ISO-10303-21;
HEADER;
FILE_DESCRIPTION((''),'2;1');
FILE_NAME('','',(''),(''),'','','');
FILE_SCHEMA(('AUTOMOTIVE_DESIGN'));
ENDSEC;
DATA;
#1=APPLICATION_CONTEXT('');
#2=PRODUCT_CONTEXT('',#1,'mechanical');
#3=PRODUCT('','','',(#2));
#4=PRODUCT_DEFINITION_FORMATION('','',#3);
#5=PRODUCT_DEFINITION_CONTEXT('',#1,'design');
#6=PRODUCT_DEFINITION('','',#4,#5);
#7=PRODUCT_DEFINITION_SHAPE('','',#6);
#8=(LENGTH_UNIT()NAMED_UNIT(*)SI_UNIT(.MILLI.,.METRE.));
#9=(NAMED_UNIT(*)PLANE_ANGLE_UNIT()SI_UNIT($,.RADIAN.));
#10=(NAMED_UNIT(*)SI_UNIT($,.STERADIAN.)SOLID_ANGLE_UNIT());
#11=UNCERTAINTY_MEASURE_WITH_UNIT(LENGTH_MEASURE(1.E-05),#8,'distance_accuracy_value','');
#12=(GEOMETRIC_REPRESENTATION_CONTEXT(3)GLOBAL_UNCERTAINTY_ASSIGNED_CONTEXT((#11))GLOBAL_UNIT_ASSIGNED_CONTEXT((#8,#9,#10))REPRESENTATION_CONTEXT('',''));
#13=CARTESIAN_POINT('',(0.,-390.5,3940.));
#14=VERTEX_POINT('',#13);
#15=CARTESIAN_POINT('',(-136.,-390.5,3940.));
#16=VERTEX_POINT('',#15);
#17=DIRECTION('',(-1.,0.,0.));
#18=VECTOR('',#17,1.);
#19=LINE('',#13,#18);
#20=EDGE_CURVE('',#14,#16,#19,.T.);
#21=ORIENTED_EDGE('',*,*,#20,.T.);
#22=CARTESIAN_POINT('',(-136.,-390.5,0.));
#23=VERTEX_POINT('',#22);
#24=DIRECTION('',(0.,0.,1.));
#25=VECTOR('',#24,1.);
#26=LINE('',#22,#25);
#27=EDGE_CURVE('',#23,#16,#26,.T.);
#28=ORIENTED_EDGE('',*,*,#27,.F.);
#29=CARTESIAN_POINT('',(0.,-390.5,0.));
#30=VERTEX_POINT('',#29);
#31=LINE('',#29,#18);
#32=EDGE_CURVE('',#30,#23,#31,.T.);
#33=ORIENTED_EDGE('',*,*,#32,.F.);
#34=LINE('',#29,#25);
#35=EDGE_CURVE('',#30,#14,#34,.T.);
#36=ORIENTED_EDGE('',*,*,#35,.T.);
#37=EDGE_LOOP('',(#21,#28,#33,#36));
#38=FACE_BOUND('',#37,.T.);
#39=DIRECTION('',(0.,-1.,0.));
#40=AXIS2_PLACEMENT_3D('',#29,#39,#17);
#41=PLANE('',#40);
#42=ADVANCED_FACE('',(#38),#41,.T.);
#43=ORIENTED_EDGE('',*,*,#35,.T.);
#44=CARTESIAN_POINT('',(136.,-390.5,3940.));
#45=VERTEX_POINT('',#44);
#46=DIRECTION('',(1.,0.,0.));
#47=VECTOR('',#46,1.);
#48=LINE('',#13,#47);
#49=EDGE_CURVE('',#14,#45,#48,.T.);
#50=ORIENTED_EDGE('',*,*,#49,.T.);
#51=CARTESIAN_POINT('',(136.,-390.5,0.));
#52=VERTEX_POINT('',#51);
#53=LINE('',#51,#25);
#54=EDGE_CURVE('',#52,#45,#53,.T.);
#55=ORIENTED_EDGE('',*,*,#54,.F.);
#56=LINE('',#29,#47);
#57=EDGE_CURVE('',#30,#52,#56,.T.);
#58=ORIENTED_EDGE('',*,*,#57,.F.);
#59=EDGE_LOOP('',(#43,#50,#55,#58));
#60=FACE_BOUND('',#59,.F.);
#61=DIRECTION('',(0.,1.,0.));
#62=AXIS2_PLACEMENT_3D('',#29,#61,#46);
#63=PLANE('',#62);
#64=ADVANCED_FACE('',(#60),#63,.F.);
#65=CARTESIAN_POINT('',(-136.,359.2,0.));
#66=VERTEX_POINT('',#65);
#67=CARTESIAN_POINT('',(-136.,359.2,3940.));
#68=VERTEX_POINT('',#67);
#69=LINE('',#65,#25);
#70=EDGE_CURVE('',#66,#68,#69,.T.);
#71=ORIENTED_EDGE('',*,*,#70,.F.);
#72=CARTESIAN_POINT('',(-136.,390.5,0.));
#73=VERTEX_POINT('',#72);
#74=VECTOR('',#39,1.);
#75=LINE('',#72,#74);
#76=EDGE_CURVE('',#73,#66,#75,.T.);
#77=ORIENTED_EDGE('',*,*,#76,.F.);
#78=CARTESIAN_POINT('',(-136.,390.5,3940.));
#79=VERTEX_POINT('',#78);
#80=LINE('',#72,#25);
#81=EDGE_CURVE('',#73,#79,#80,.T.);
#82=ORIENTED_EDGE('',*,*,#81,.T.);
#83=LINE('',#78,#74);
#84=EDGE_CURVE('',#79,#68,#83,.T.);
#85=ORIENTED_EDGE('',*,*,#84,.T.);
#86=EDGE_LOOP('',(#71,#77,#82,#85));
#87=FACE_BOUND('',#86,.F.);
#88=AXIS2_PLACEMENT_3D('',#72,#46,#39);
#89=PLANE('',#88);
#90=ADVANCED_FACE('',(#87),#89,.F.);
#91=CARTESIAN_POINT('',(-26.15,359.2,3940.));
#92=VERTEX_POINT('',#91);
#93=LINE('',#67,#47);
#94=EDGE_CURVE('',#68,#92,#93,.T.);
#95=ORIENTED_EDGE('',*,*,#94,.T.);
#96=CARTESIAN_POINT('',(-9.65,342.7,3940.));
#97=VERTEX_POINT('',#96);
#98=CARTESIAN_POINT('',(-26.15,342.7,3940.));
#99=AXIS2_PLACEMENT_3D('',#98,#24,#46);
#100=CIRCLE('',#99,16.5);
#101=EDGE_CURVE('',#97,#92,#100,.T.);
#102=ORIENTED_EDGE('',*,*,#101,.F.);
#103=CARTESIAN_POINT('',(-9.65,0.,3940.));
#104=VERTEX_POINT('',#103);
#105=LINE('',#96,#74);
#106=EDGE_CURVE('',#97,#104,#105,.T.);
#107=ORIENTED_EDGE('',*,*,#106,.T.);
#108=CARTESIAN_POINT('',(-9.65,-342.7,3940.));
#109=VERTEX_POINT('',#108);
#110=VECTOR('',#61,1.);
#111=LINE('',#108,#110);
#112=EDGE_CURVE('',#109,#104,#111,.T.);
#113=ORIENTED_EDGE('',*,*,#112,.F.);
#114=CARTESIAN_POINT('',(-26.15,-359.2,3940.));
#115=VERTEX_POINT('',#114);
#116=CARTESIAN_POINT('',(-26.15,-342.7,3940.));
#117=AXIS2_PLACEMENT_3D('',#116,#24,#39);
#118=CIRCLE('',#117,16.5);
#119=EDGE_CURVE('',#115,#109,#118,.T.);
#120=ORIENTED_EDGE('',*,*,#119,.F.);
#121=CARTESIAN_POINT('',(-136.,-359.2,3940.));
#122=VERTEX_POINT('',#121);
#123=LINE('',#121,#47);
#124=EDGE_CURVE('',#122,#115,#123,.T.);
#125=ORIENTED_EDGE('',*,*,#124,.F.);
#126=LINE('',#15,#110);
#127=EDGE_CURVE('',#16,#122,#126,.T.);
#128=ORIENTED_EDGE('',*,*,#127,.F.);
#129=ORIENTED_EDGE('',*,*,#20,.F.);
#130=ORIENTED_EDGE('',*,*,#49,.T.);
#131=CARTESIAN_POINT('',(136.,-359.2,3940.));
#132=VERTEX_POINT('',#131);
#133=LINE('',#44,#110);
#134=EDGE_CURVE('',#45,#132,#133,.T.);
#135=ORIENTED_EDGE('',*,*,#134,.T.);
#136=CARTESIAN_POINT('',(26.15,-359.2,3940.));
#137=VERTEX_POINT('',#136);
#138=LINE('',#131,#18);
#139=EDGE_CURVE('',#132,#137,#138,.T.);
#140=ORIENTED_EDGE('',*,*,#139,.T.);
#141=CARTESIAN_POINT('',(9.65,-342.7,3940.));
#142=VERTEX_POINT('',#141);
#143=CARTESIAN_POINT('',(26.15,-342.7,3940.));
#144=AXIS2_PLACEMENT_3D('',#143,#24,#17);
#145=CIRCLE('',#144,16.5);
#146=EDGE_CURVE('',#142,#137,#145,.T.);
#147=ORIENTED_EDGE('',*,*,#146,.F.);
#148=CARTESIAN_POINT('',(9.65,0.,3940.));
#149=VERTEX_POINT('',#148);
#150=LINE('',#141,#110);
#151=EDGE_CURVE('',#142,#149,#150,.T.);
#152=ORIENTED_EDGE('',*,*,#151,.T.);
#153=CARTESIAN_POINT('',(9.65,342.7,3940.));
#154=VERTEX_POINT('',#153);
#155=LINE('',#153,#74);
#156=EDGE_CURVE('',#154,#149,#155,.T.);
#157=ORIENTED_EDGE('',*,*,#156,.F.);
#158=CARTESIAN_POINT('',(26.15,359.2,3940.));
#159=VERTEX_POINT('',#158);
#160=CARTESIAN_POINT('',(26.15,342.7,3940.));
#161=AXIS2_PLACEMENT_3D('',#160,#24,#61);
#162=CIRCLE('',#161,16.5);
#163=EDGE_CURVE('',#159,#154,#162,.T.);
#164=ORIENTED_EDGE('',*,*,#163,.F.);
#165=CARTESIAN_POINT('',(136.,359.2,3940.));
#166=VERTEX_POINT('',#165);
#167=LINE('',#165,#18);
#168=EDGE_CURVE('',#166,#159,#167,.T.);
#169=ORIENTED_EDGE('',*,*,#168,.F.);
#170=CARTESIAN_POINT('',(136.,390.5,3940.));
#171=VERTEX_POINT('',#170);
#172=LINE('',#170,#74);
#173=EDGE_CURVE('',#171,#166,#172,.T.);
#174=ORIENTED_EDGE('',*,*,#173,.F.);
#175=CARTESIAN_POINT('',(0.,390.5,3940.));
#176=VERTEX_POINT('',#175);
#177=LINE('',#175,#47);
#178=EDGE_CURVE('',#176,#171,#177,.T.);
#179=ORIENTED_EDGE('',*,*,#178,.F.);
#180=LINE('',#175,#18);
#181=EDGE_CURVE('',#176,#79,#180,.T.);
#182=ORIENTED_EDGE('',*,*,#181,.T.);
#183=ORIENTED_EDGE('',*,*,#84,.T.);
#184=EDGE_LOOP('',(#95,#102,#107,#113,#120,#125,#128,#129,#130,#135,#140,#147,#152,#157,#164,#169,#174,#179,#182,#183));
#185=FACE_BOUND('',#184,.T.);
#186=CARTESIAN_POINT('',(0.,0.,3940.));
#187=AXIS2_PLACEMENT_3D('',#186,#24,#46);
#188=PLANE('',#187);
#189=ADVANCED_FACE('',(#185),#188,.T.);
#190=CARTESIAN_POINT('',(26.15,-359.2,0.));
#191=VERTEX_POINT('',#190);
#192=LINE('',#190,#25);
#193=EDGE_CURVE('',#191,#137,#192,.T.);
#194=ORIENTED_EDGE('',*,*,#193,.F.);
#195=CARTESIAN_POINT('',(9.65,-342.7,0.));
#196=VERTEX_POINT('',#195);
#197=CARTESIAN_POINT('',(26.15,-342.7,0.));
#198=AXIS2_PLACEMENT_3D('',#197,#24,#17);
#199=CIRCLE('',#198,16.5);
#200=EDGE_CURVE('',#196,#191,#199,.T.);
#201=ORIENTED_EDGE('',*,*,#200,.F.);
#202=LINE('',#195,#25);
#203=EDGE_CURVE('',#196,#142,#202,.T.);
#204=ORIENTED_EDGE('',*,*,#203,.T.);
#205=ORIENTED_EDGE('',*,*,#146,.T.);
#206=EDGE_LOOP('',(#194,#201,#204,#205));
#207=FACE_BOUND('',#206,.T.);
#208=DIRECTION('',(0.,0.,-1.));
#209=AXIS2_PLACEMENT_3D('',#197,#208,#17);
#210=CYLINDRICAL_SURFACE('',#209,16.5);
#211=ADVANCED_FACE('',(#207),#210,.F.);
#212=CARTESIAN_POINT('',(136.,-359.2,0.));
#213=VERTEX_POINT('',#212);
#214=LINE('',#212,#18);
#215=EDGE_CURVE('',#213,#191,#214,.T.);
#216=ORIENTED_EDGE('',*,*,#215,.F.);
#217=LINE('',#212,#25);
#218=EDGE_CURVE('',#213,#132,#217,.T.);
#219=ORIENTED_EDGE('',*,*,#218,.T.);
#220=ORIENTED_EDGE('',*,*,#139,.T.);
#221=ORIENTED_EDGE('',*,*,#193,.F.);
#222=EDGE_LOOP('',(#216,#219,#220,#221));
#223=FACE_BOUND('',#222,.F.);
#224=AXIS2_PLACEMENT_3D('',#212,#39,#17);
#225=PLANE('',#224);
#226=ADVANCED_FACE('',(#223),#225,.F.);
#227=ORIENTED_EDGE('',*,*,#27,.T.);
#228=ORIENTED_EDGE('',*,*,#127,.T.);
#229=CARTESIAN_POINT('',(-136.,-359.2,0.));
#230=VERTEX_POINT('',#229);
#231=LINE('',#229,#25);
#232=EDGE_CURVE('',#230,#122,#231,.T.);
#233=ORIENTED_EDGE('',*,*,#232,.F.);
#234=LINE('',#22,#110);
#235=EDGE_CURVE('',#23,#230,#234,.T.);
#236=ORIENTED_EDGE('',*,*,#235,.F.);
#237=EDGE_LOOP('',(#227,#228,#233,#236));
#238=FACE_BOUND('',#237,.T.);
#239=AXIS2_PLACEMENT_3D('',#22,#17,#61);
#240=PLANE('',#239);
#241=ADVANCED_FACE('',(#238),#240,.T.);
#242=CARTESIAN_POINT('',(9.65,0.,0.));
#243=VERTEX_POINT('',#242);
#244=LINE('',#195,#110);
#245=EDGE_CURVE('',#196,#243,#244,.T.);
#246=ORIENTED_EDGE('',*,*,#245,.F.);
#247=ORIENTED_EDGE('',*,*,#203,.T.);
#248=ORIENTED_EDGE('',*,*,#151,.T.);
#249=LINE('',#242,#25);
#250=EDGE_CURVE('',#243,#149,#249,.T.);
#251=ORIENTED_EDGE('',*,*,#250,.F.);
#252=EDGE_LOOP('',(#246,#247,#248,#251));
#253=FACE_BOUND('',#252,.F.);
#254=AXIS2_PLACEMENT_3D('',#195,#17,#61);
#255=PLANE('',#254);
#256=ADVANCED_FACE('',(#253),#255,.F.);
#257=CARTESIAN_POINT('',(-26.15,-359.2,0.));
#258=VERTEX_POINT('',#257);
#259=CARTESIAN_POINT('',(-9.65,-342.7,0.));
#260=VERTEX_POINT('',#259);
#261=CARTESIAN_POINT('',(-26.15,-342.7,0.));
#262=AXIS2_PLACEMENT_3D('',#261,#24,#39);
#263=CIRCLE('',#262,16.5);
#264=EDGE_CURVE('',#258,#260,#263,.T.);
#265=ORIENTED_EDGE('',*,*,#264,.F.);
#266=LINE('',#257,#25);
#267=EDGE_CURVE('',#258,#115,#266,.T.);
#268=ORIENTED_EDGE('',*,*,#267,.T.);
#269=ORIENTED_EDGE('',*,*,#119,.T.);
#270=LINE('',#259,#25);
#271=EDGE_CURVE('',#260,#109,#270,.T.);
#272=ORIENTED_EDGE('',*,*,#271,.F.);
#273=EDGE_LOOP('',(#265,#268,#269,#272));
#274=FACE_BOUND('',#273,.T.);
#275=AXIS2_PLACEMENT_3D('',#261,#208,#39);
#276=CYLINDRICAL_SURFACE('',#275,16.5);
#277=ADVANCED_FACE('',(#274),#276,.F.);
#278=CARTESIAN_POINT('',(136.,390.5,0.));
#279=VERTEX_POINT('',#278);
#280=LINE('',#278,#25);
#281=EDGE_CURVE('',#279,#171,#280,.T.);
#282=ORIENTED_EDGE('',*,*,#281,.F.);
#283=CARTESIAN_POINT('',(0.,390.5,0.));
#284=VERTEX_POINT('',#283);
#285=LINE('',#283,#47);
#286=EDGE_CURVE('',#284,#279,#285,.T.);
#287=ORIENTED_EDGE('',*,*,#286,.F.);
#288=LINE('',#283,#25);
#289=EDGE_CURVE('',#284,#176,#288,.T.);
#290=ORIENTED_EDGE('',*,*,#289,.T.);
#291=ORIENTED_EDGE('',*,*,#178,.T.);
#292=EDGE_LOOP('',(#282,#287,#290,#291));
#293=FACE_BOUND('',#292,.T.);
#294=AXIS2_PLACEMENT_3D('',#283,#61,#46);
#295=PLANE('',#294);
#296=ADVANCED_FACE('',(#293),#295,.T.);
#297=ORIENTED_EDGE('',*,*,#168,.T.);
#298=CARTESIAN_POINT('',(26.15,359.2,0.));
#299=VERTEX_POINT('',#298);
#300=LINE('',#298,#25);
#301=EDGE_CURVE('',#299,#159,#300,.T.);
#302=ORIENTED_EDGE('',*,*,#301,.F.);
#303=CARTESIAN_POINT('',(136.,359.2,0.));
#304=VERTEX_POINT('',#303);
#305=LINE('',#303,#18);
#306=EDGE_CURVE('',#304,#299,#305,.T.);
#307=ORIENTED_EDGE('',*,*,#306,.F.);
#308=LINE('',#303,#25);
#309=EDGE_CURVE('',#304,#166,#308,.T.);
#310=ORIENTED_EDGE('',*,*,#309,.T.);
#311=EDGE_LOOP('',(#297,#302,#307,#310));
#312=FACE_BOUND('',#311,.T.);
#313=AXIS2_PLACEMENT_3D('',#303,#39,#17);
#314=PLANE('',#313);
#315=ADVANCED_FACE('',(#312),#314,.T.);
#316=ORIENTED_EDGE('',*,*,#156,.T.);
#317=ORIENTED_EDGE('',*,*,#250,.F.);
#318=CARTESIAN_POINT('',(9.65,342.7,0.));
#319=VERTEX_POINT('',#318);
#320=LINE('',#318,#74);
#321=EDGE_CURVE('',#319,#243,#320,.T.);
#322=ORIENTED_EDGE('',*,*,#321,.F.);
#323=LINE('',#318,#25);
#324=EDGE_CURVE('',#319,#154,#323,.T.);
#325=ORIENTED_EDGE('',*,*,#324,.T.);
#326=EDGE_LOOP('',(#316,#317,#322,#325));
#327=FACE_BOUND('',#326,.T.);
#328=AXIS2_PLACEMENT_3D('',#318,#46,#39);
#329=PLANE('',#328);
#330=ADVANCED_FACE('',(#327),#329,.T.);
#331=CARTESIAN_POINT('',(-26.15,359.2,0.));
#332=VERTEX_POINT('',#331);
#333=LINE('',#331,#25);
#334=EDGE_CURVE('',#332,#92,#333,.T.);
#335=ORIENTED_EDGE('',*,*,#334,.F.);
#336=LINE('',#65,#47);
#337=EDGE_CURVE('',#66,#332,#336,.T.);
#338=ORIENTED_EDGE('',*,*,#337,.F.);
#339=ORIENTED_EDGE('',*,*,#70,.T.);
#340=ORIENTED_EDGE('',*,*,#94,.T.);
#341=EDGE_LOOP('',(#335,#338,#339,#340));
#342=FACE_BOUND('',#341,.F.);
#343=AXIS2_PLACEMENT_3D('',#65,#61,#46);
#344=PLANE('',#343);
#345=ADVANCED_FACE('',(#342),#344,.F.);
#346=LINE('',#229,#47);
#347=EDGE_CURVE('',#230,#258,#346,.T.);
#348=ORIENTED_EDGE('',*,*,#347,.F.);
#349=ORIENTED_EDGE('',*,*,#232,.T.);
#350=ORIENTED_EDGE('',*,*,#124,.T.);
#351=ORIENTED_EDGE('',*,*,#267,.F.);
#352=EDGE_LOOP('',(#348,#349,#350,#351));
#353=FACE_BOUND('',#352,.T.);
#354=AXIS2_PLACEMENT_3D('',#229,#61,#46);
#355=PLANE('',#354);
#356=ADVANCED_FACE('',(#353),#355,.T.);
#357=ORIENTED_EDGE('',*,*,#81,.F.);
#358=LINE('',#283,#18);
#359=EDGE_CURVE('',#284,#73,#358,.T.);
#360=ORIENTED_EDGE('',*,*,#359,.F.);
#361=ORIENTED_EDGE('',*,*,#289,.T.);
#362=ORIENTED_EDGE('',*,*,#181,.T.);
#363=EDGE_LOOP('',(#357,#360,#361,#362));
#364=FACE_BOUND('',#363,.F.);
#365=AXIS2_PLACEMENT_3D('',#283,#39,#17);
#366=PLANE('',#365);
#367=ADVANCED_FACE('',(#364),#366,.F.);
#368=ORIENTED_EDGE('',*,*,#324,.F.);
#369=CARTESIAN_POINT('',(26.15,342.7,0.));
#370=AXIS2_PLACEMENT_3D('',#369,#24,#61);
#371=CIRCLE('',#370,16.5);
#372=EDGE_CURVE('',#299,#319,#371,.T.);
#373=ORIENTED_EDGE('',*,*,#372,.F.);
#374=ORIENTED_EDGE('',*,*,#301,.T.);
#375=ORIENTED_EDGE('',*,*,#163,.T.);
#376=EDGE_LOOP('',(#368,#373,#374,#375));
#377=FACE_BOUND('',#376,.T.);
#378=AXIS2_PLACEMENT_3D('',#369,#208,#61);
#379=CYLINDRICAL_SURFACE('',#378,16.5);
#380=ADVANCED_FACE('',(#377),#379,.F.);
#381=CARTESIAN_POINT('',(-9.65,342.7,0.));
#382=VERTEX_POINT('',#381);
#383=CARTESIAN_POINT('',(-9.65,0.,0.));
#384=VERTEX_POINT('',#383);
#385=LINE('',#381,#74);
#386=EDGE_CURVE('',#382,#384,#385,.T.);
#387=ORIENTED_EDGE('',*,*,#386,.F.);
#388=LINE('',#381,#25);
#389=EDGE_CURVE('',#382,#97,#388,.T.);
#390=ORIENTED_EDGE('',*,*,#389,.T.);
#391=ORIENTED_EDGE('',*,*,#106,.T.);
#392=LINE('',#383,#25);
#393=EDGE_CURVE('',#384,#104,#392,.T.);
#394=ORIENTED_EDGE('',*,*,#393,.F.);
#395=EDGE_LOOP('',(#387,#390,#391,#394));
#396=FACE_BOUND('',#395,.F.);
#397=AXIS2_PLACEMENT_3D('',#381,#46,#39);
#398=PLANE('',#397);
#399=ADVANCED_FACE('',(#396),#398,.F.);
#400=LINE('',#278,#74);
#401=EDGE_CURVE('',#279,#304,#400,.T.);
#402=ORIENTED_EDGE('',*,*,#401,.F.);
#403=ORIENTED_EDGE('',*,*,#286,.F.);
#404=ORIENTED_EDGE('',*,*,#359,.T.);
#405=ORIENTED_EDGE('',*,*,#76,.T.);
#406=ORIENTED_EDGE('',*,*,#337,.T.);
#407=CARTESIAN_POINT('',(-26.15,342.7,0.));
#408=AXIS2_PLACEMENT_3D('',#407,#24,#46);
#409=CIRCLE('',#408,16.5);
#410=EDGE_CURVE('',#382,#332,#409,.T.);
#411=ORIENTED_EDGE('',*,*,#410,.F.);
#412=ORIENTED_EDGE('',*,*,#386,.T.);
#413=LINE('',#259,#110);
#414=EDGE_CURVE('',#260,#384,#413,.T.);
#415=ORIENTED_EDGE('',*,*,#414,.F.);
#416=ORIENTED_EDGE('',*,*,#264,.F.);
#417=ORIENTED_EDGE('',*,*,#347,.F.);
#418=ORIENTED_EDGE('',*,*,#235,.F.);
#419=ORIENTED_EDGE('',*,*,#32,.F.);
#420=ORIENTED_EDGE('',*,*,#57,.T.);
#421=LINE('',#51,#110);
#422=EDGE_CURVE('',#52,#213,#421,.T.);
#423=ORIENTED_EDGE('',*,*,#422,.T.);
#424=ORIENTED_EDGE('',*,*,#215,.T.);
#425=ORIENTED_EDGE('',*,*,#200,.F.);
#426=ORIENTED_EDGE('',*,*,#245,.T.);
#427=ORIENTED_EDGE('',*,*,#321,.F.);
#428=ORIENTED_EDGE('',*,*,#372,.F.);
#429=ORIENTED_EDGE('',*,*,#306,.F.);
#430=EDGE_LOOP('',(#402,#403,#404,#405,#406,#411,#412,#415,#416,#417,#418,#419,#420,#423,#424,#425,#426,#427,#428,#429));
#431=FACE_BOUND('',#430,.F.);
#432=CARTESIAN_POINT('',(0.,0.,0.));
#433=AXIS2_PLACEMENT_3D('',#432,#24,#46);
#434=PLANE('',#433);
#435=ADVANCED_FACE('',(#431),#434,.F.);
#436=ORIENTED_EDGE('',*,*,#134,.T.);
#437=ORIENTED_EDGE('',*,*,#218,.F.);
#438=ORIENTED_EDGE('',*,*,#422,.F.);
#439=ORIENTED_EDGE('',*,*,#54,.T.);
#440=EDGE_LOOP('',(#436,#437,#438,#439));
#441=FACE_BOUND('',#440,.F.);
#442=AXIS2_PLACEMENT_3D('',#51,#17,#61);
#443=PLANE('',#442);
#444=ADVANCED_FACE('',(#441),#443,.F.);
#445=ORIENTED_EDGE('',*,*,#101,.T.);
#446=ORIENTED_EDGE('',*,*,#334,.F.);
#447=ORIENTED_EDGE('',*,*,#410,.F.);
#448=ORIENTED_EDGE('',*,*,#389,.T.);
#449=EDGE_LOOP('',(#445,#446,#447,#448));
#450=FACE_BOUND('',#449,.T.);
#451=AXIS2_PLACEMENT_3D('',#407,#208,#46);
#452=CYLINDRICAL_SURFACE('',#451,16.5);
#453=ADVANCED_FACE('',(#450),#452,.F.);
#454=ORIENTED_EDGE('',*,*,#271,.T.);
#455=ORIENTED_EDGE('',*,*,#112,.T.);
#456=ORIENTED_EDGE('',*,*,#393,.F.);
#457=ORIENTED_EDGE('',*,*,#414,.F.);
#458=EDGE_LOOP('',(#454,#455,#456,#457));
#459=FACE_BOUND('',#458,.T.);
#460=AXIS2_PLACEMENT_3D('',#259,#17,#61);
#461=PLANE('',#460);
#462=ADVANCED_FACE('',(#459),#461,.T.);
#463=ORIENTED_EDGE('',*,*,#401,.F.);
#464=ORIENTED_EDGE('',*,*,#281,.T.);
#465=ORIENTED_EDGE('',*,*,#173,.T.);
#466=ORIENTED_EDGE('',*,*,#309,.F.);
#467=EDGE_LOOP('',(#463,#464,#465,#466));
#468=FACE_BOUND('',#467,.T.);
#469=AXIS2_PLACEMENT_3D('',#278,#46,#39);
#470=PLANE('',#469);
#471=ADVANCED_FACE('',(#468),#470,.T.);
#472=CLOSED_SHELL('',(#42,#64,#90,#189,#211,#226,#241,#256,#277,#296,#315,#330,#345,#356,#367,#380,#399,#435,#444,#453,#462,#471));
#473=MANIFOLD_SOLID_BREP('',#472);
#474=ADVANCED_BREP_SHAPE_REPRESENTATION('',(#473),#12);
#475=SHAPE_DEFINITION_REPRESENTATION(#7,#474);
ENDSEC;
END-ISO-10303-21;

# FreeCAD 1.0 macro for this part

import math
import FreeCAD as App
import Part
import Sketcher
Q = App.Units.Quantity

doc = App.newDocument("Part")
params = doc.addObject("Spreadsheet::Sheet", "Params")
for row, (alias, value) in enumerate([
    ("sketch1_radius", "16.5 mm"),
    ("sketch1_height", "31.3 mm"),
    ("pad1_length", "3940 mm"),
], start=1):
    params.set(f"A{row}", alias)
    params.set(f"B{row}", "=" + value)
    params.setAlias(f"B{row}", alias)

body = doc.addObject("PartDesign::Body", "Body")

# Sketch on XY plane
sketch1 = body.newObject("Sketcher::SketchObject", "Sketch")
sketch1.AttachmentSupport = (doc.getObject("XY_Plane"), [""])
sketch1.MapMode = "FlatFace"
sketch1.addGeometry([
    Part.LineSegment(App.Vector(-136, -359, 0), App.Vector(-136, -390, 0)),  # 0
    Part.LineSegment(App.Vector(-136, -390, 0), App.Vector(136, -390, 0)),  # 1
    Part.LineSegment(App.Vector(136, -390, 0), App.Vector(136, -359, 0)),  # 2
    Part.LineSegment(App.Vector(136, -359, 0), App.Vector(26, -359, 0)),  # 3
    Part.ArcOfCircle(Part.Circle(App.Vector(26, -343, 0), App.Vector(0, 0, 1), 16), math.radians(180), math.radians(270)),  # 4
    Part.LineSegment(App.Vector(10, -343, 0), App.Vector(10, 343, 0)),  # 5
    Part.ArcOfCircle(Part.Circle(App.Vector(26, 343, 0), App.Vector(0, 0, 1), 16), math.radians(90), math.radians(180)),  # 6
    Part.LineSegment(App.Vector(26, 359, 0), App.Vector(136, 359, 0)),  # 7
    Part.LineSegment(App.Vector(136, 359, 0), App.Vector(136, 390, 0)),  # 8
    Part.LineSegment(App.Vector(136, 390, 0), App.Vector(-136, 390, 0)),  # 9
    Part.LineSegment(App.Vector(-136, 390, 0), App.Vector(-136, 359, 0)),  # 10
    Part.LineSegment(App.Vector(-136, 359, 0), App.Vector(-26, 359, 0)),  # 11
    Part.ArcOfCircle(Part.Circle(App.Vector(-26, 343, 0), App.Vector(0, 0, 1), 16), math.radians(0), math.radians(90)),  # 12
    Part.LineSegment(App.Vector(-10, 343, 0), App.Vector(-10, -343, 0)),  # 13
    Part.ArcOfCircle(Part.Circle(App.Vector(-26, -343, 0), App.Vector(0, 0, 1), 16), math.radians(-90), math.radians(0)),  # 14
    Part.LineSegment(App.Vector(-26, -359, 0), App.Vector(-136, -359, 0)),  # 15
], False)
sketch1.addConstraint([
    Sketcher.Constraint("Coincident", 0, 2, 1, 1),
    Sketcher.Constraint("Coincident", 1, 2, 2, 1),
    Sketcher.Constraint("Coincident", 2, 2, 3, 1),
    Sketcher.Constraint("Tangent", 3, 2, 4, 2),
    Sketcher.Constraint("Tangent", 4, 1, 5, 1),
    Sketcher.Constraint("Tangent", 5, 2, 6, 2),
    Sketcher.Constraint("Tangent", 6, 1, 7, 1),
    Sketcher.Constraint("Coincident", 7, 2, 8, 1),
    Sketcher.Constraint("Coincident", 8, 2, 9, 1),
    Sketcher.Constraint("Coincident", 9, 2, 10, 1),
    Sketcher.Constraint("Coincident", 10, 2, 11, 1),
    Sketcher.Constraint("Tangent", 11, 2, 12, 2),
    Sketcher.Constraint("Tangent", 12, 1, 13, 1),
    Sketcher.Constraint("Tangent", 13, 2, 14, 2),
    Sketcher.Constraint("Tangent", 14, 1, 15, 1),
    Sketcher.Constraint("Coincident", 15, 2, 0, 1),
    Sketcher.Constraint("Vertical", 0),
    Sketcher.Constraint("Horizontal", 1),
    Sketcher.Constraint("Vertical", 2),
    Sketcher.Constraint("Horizontal", 3),
    Sketcher.Constraint("Vertical", 5),
    Sketcher.Constraint("Horizontal", 7),
    Sketcher.Constraint("Vertical", 8),
    Sketcher.Constraint("Horizontal", 9),
    Sketcher.Constraint("Vertical", 10),
    Sketcher.Constraint("Horizontal", 11),
    Sketcher.Constraint("Vertical", 13),
    Sketcher.Constraint("Horizontal", 15),
    Sketcher.Constraint("Equal", 4, 6),
    Sketcher.Constraint("Equal", 6, 12),
    Sketcher.Constraint("Equal", 12, 14),
    Sketcher.Constraint("Symmetric", 4, 3, 12, 3, -1, 1),
    Sketcher.Constraint("Symmetric", 0, 2, 8, 2, -1, 1),
    Sketcher.Constraint("Symmetric", 7, 2, 10, 2, -2),
    Sketcher.Constraint("Symmetric", 2, 2, 15, 2, -2),
    Sketcher.Constraint("Radius", 4, Q("16.5 mm")),
    Sketcher.Constraint("DistanceY", 0, 2, 0, 1, Q("31.3 mm")),
    Sketcher.Constraint("DistanceX", 0, 2, -1, 1, Q("136 mm")),
    Sketcher.Constraint("DistanceY", 0, 2, -1, 1, Q("390.5 mm")),
    Sketcher.Constraint("DistanceX", -1, 1, 4, 1, Q("9.65 mm")),
])
sketch1.setExpression("Constraints[35]", "Params.sketch1_radius")
sketch1.setExpression("Constraints[36]", "Params.sketch1_height")
pad1 = body.newObject("PartDesign::Pad", "Pad")
pad1.Profile = sketch1
pad1.setExpression("Length", "Params.pad1_length")

doc.recompute()
